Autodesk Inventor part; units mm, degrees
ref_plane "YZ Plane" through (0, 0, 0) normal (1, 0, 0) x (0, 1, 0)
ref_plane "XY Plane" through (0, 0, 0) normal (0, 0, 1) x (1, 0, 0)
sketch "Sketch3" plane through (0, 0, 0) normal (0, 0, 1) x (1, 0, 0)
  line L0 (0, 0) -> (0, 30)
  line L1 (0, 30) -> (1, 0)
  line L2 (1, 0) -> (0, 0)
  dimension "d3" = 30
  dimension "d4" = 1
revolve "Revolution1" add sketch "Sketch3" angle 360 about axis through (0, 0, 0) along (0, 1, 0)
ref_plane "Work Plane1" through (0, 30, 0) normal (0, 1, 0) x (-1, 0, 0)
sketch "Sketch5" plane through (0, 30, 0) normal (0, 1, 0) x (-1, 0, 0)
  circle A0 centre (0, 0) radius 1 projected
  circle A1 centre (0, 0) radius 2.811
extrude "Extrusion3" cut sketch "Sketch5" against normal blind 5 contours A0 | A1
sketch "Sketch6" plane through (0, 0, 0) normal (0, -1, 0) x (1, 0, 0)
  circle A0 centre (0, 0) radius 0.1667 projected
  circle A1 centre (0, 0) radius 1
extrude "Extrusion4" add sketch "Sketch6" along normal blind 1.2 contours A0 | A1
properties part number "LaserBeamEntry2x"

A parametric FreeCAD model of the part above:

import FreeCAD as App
import Part
import Sketcher

V = App.Vector
Q = App.Units.Quantity

doc = App.newDocument("Part")
body = doc.addObject("PartDesign::Body", "Body")

sketch1 = body.newObject("Sketcher::SketchObject", "Sketch")
sketch1.AttachmentSupport = (doc.getObject("XY_Plane"), [""])
sketch1.MapMode = "FlatFace"
sketch1.addGeometry([
    Part.LineSegment(V(0, 30, 0), V(0, 0, 0)),
    Part.LineSegment(V(0, 0, 0), V(1, 0, 0)),
    Part.LineSegment(V(1, 0, 0), V(0, 30, 0)),
], False)
sketch1.addConstraint([
    Sketcher.Constraint("Coincident", 0, 2, 1, 1),
    Sketcher.Constraint("Coincident", 1, 2, 2, 1),
    Sketcher.Constraint("Coincident", 2, 2, 0, 1),
    Sketcher.Constraint("Vertical", 0),
    Sketcher.Constraint("Horizontal", 1),
    Sketcher.Constraint("Coincident", 0, 2, -1, 1),
    Sketcher.Constraint("DistanceX", 1, 1, 1, 2, Q("1 mm")),
    Sketcher.Constraint("DistanceY", 0, 2, 0, 1, Q("30 mm")),
])
revolution = body.newObject("PartDesign::Revolution", "Revolution")
revolution.Profile = sketch1
revolution.ReferenceAxis = (sketch1, ["V_Axis"])
revolution.Angle = 360

sketch2 = body.newObject("Sketcher::SketchObject", "Sketch001")
sketch2.AttachmentSupport = (doc.getObject("XZ_Plane"), [""])
sketch2.MapMode = "FlatFace"
sketch2.AttachmentOffset = App.Placement(V(0, 0, -30), App.Rotation())
sketch2.addGeometry(Part.Circle(V(0, 0, 0), V(0, 0, 1), 2.8), False)
sketch2.addConstraint([
    Sketcher.Constraint("Coincident", 0, 3, -1, 1),
    Sketcher.Constraint("Diameter", 0, Q("5.622 mm")),
])
pocket1 = body.newObject("PartDesign::Pocket", "Pocket")
pocket1.Profile = sketch2
pocket1.Length = 5
pocket1.Reversed = True

sketch3 = body.newObject("Sketcher::SketchObject", "Sketch002")
sketch3.AttachmentSupport = (doc.getObject("XZ_Plane"), [""])
sketch3.MapMode = "FlatFace"
sketch3.addGeometry(Part.Circle(V(0, 0, 0), V(0, 0, 1), 1), False)
sketch3.addConstraint([
    Sketcher.Constraint("Coincident", 0, 3, -1, 1),
    Sketcher.Constraint("Diameter", 0, Q("2 mm")),
])
pad1 = body.newObject("PartDesign::Pad", "Pad")
pad1.Profile = sketch3
pad1.Length = 1.2

doc.recompute()
